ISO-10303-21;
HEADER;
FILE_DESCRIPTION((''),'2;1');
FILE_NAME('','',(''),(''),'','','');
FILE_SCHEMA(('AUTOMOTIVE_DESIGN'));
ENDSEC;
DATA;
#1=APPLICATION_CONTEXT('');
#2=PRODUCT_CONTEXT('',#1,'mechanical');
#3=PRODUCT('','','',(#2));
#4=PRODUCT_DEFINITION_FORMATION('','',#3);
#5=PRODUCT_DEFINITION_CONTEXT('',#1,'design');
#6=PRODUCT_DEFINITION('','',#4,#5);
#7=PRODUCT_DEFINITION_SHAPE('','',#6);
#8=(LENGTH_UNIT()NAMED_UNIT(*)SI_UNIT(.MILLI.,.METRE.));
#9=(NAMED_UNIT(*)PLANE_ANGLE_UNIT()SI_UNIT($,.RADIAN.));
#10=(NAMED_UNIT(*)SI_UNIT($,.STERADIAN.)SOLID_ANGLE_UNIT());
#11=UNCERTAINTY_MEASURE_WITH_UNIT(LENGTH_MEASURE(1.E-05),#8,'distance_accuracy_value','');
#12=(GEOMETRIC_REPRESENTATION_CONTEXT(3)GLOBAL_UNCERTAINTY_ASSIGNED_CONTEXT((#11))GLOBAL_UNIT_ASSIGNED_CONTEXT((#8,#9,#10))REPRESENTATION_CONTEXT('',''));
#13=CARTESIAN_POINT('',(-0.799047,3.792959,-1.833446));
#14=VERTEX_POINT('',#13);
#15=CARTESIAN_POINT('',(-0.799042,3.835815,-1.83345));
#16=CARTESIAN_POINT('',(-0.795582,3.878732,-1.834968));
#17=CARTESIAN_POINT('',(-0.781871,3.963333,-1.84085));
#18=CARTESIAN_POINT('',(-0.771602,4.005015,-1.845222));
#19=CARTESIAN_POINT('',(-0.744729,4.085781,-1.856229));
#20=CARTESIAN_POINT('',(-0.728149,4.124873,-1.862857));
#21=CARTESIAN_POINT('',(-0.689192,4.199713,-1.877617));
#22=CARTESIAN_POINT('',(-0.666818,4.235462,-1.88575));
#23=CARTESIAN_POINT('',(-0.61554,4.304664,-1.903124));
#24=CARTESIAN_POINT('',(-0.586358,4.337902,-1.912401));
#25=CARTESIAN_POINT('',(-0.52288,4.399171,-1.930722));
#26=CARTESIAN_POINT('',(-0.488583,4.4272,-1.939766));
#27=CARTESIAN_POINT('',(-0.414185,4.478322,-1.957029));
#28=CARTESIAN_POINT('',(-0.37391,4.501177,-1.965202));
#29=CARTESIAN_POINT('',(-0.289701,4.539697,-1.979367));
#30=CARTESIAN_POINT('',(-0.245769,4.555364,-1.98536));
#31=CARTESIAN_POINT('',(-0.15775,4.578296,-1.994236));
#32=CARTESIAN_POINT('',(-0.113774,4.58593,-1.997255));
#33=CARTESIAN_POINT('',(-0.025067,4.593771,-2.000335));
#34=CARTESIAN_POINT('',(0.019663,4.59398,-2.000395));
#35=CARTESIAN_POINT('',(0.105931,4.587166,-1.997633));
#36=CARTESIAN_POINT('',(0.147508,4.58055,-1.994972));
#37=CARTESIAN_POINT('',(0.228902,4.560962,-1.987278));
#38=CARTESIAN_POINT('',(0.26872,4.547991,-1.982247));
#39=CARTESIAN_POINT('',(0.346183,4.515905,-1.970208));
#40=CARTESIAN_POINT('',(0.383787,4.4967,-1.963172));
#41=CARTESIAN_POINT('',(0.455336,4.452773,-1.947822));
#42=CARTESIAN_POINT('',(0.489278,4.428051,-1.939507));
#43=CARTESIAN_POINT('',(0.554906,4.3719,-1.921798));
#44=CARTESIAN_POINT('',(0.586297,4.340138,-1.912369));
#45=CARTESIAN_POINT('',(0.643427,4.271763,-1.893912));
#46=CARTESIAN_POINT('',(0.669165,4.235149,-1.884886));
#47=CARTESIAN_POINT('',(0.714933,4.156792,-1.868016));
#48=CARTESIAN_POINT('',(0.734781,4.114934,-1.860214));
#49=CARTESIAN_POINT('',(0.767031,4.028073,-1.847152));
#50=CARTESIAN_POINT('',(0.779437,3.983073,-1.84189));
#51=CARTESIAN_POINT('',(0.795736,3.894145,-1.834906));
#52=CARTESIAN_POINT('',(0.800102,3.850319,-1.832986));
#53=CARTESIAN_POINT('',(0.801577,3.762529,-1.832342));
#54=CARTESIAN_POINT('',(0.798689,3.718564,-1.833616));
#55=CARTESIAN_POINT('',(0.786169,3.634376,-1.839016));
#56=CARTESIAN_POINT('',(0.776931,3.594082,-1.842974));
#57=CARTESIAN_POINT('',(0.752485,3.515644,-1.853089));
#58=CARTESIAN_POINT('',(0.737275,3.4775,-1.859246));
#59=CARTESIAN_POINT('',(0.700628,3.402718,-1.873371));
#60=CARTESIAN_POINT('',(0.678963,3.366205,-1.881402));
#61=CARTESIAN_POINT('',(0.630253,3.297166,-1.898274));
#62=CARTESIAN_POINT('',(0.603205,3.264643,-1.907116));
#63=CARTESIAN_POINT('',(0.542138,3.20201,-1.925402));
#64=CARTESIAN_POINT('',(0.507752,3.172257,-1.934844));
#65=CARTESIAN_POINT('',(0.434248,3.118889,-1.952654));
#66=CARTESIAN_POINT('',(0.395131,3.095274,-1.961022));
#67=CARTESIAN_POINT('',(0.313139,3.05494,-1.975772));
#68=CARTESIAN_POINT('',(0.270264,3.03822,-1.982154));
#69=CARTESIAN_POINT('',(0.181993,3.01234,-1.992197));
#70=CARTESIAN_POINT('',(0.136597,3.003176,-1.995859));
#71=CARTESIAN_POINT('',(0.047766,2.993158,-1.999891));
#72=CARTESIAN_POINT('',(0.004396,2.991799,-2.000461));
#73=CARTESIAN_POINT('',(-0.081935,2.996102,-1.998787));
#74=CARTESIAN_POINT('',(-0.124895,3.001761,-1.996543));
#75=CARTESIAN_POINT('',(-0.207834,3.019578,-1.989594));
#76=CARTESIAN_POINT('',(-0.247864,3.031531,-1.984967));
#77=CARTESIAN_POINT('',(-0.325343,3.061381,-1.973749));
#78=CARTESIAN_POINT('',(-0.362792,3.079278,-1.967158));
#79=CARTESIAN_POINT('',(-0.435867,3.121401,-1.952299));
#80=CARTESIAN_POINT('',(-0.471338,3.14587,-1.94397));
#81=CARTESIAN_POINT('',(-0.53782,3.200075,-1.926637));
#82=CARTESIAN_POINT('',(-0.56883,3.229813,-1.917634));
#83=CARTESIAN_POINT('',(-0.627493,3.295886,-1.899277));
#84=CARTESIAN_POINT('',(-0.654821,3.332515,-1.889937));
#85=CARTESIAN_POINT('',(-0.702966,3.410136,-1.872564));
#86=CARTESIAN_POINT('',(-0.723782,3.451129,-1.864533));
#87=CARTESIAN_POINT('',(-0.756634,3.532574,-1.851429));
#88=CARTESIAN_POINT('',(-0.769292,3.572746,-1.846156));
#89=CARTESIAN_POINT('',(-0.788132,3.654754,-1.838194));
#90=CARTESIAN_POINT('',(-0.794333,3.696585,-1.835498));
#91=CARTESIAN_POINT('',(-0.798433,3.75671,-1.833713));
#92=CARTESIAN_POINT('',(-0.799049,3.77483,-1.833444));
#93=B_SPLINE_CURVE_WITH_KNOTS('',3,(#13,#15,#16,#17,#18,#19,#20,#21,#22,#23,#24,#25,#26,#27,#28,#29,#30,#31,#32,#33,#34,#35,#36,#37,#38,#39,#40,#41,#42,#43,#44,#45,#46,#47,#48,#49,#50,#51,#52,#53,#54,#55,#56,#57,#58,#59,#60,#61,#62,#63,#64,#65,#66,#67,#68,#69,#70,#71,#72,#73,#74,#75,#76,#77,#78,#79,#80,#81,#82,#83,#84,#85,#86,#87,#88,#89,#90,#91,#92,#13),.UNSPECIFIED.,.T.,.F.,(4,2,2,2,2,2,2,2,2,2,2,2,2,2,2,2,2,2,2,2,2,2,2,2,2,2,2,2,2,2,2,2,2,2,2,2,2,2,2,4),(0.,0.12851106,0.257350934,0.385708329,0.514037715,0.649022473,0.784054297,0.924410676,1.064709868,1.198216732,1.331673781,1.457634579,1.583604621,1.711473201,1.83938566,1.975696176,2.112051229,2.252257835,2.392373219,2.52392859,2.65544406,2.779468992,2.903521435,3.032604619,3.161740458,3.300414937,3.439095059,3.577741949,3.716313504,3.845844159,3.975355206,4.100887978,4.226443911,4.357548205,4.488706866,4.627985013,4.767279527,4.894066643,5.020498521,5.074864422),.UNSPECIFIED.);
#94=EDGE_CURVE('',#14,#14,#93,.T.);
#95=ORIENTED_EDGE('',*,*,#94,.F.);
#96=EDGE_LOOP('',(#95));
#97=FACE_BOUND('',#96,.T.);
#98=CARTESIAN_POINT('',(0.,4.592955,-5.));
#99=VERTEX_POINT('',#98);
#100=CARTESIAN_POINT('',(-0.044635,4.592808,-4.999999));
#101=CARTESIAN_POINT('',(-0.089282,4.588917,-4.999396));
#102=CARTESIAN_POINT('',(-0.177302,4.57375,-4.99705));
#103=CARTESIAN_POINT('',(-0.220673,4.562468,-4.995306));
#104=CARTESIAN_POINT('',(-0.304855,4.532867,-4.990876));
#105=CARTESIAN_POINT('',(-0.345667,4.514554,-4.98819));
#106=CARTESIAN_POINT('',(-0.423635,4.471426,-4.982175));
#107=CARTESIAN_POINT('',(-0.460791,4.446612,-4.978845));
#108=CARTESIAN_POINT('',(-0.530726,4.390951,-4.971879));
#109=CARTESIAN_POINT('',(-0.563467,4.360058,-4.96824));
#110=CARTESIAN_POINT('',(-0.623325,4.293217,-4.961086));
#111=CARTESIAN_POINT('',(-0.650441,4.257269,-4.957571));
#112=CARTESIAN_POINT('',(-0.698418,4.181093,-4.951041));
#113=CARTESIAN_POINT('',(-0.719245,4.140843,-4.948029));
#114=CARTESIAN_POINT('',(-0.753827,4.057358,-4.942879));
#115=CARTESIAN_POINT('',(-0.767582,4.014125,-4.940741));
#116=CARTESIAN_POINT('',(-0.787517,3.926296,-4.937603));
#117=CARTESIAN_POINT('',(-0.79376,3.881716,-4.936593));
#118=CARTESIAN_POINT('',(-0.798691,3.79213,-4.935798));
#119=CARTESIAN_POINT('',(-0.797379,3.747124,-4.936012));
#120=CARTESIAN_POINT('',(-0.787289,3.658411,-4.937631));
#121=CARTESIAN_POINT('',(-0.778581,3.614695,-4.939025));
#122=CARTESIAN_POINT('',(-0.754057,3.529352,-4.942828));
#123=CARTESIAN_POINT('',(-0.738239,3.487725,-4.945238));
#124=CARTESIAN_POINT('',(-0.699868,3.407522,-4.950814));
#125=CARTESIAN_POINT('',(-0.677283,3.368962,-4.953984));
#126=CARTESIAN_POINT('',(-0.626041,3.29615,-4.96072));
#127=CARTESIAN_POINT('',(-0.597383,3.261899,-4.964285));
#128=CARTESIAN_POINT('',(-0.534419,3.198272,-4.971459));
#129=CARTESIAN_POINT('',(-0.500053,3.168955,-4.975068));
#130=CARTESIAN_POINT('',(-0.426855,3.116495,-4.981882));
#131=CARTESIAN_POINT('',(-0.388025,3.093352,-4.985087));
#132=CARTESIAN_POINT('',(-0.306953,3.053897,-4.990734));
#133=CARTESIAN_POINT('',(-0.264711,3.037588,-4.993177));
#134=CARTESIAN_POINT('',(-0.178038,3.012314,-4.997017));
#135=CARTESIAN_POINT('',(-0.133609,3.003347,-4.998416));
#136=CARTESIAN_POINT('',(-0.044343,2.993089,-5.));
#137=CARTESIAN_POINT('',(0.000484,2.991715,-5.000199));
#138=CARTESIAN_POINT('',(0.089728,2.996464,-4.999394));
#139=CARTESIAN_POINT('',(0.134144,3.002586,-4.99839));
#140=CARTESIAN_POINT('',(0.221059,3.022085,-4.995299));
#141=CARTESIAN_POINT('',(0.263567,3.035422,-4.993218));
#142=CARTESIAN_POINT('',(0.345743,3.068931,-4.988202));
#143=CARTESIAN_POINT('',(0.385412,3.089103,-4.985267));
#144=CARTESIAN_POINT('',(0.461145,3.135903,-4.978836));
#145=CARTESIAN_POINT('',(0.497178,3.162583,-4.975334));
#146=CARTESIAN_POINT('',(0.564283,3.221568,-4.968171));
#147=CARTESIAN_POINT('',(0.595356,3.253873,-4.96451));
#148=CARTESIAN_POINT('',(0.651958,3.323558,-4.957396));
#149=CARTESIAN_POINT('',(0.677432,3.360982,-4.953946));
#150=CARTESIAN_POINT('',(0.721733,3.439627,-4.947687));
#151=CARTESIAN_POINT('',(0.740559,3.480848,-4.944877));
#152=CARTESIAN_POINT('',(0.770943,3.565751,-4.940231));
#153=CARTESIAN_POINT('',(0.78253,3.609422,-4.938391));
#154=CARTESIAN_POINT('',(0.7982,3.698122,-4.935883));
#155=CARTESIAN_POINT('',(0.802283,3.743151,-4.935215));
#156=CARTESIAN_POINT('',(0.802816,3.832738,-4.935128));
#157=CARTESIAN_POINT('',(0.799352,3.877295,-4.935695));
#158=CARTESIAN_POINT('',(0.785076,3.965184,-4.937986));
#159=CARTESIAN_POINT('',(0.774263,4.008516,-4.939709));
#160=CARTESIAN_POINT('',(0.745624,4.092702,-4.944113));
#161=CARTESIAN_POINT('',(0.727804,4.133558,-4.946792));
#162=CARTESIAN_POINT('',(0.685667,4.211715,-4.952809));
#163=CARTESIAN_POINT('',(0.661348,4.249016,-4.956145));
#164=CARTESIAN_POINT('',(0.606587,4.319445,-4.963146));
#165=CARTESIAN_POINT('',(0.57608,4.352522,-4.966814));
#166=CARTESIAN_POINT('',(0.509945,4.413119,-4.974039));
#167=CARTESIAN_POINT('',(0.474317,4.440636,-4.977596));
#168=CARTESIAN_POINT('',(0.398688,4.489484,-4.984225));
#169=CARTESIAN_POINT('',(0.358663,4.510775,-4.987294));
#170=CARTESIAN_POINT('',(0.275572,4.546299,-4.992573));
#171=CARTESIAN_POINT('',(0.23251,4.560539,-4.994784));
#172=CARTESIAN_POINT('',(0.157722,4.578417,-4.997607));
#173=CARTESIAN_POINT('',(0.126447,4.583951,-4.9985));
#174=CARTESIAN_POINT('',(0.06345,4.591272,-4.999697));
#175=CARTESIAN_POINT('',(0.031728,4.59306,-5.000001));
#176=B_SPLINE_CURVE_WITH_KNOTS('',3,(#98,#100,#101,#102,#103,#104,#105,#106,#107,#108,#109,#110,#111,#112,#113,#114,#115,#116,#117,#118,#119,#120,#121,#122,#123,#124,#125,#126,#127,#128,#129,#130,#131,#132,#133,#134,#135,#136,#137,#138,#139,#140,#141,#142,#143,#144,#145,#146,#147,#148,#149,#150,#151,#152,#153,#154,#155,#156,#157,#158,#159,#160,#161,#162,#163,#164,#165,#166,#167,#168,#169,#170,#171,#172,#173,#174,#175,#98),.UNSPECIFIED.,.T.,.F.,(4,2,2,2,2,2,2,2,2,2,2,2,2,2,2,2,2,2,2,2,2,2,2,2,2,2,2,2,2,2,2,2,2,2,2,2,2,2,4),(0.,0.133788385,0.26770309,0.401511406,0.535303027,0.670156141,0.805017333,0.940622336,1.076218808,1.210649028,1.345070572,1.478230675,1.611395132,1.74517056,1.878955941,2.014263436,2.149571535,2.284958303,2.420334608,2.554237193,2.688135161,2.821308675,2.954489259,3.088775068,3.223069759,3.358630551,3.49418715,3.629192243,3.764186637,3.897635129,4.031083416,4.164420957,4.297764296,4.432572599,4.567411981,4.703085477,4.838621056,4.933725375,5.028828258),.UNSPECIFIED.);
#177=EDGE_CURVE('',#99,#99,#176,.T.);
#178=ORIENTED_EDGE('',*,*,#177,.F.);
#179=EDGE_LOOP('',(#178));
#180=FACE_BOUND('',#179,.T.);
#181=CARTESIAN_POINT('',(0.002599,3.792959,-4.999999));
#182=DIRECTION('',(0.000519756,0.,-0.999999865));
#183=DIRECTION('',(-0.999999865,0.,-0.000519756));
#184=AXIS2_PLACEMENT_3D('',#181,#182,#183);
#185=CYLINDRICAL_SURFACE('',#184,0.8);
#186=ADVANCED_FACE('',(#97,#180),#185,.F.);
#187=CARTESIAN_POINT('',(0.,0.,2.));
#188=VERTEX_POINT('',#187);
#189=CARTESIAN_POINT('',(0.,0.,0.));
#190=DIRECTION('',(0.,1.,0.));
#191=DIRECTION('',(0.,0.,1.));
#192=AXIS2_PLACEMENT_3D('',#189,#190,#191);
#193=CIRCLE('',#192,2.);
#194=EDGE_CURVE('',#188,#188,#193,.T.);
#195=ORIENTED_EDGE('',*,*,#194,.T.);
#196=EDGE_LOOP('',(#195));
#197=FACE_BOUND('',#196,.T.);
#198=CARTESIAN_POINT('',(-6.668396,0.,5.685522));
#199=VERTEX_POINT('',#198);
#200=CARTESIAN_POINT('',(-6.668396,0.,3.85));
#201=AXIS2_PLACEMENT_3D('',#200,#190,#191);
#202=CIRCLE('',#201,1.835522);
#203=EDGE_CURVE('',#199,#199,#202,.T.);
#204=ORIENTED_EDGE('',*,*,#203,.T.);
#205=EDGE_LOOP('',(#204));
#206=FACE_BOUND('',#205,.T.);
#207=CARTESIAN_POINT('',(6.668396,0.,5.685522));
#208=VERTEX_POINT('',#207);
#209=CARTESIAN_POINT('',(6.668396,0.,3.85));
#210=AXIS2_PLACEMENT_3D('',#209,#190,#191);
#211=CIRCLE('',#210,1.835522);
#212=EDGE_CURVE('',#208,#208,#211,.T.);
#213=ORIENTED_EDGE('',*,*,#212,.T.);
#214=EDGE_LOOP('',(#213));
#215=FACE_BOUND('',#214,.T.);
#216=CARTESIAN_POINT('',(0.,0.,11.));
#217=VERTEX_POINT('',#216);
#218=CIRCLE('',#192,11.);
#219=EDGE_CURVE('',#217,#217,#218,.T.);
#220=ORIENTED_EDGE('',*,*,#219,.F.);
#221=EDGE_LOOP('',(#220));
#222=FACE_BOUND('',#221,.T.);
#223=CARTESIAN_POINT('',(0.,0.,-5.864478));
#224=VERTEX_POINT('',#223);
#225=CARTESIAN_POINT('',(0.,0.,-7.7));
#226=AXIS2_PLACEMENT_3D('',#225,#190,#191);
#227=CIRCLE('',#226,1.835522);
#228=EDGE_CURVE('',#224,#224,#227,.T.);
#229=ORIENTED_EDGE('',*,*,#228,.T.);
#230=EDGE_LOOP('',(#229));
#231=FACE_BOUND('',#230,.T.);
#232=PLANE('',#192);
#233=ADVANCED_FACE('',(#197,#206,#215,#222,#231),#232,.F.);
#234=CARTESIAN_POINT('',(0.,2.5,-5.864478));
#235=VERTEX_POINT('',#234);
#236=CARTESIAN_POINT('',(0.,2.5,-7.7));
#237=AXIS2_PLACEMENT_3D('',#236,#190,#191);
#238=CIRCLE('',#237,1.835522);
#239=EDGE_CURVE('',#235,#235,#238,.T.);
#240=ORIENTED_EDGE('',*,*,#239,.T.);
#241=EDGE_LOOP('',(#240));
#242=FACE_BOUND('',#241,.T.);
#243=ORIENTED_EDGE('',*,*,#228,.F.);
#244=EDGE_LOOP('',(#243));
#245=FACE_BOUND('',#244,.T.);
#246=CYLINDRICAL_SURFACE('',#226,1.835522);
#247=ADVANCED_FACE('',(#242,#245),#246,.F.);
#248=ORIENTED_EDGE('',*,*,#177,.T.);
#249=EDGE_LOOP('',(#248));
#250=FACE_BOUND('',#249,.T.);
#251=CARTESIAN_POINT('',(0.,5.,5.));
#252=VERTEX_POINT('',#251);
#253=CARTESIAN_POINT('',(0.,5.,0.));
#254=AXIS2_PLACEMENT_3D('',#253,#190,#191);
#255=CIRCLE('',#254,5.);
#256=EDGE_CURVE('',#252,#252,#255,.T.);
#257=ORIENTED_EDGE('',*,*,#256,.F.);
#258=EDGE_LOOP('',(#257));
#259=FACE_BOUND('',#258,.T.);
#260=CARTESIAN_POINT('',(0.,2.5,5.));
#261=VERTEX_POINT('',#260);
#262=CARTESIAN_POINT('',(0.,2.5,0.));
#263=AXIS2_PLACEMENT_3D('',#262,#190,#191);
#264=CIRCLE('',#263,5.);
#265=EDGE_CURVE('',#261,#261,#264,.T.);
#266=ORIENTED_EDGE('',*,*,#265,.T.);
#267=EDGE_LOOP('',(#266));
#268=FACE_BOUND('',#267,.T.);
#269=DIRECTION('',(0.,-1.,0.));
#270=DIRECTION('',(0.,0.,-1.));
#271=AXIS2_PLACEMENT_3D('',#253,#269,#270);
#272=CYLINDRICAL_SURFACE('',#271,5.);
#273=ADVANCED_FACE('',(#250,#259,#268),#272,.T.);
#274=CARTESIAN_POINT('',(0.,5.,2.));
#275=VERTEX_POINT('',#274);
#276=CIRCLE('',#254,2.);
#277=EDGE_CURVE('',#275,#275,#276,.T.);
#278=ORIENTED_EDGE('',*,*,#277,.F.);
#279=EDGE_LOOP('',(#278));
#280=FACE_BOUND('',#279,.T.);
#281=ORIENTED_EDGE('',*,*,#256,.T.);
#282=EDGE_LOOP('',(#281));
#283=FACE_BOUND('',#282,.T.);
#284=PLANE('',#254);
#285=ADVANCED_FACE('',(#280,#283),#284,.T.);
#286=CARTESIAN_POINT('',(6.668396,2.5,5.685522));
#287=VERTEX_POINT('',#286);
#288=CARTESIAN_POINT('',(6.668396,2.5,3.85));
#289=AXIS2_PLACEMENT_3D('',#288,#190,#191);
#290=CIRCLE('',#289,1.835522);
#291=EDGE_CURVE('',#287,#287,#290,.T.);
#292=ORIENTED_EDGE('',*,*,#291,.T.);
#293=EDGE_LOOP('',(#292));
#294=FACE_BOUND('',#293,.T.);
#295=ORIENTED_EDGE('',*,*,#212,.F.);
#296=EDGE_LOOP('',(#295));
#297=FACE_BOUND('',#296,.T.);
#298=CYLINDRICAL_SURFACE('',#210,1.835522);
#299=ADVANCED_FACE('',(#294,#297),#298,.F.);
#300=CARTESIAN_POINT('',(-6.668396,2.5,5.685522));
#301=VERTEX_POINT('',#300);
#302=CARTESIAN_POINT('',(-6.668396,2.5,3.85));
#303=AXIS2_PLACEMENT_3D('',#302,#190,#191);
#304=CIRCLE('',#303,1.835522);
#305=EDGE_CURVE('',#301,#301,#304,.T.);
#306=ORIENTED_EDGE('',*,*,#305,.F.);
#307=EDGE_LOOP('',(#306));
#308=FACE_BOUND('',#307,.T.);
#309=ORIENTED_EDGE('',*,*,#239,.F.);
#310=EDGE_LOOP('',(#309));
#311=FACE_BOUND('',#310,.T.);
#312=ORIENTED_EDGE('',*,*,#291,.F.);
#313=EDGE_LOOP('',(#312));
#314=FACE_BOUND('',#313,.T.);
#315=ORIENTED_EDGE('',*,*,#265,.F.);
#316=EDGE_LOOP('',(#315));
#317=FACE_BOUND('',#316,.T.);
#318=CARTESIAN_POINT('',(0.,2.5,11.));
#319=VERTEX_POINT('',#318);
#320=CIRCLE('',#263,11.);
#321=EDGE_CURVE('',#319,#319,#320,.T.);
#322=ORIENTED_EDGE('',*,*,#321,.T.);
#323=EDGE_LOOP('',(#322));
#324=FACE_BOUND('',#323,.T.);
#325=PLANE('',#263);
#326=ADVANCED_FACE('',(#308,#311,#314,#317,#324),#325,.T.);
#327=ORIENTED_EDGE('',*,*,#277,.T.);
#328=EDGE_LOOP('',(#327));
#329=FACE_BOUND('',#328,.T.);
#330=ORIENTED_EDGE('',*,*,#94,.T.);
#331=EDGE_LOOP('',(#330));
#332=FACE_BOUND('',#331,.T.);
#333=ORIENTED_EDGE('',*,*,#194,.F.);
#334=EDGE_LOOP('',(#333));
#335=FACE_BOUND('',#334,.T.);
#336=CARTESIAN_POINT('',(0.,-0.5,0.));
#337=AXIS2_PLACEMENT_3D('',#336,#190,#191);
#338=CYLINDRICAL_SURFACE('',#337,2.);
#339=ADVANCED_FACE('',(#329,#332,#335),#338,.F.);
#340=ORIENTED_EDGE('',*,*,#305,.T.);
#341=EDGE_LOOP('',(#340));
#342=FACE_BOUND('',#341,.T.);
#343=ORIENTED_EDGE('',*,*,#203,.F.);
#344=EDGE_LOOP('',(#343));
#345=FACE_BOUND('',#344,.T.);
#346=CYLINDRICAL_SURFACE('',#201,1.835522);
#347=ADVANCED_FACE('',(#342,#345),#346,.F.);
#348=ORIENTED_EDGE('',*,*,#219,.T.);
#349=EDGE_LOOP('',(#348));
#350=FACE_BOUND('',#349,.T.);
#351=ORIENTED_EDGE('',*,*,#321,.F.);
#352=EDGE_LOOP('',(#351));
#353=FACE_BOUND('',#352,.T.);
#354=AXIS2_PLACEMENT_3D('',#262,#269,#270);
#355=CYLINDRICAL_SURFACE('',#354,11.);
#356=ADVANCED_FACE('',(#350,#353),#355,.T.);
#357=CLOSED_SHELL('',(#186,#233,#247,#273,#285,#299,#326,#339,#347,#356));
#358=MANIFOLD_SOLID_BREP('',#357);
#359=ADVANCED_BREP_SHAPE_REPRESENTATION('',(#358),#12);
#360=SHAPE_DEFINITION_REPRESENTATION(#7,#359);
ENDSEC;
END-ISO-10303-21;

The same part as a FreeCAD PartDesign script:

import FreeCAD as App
import Part
import Sketcher
Q = App.Units.Quantity

doc = App.newDocument("Part")
body = doc.addObject("PartDesign::Body", "Body")

# Sketch on XZ plane
sketch1 = body.newObject("Sketcher::SketchObject", "Sketch")
sketch1.AttachmentSupport = (doc.getObject("XZ_Plane"), [""])
sketch1.MapMode = "FlatFace"
sketch1.addGeometry(Part.Circle(App.Vector(0, 0, 0), App.Vector(0, 0, 1), 11), False)
sketch1.addConstraint([
    Sketcher.Constraint("Coincident", 0, 3, -1, 1),
    Sketcher.Constraint("Diameter", 0, Q("22 mm")),
])
pad1 = body.newObject("PartDesign::Pad", "Pad")
pad1.Profile = sketch1
pad1.Length = 2.5
pad1.Reversed = True

# Sketch on XZ plane
sketch2 = body.newObject("Sketcher::SketchObject", "Sketch001")
sketch2.AttachmentSupport = (doc.getObject("XZ_Plane"), [""])
sketch2.MapMode = "FlatFace"
sketch2.AttachmentOffset = App.Placement(App.Vector(0, 0, -2.5), App.Rotation())
sketch2.addGeometry([
    Part.Circle(App.Vector(0, -7.7, 0), App.Vector(0, 0, 1), 1.8),
    Part.Circle(App.Vector(6.7, 3.9, 0), App.Vector(0, 0, 1), 1.8),
    Part.Circle(App.Vector(-6.7, 3.9, 0), App.Vector(0, 0, 1), 1.8),
], False)
sketch2.addConstraint([
    Sketcher.Constraint("Equal", 0, 1),
    Sketcher.Constraint("Equal", 1, 2),
    Sketcher.Constraint("Symmetric", 1, 3, 2, 3, -2),
    Sketcher.Constraint("PointOnObject", 0, 3, -2),
    Sketcher.Constraint("DistanceY", 0, 3, -1, 1, Q("7.7 mm")),
    Sketcher.Constraint("DistanceY", -1, 1, 1, 3, Q("3.85 mm")),
    Sketcher.Constraint("Diameter", 0, Q("3.671043 mm")),
    Sketcher.Constraint("DistanceX", 2, 3, 1, 3, Q("13.336791 mm")),
])
pocket1 = body.newObject("PartDesign::Pocket", "Pocket")
pocket1.Profile = sketch2
pocket1.Length = 2.5
pocket1.Reversed = True

# Sketch on XZ plane
sketch3 = body.newObject("Sketcher::SketchObject", "Sketch002")
sketch3.AttachmentSupport = (doc.getObject("XZ_Plane"), [""])
sketch3.MapMode = "FlatFace"
sketch3.AttachmentOffset = App.Placement(App.Vector(0, 0, -2.5), App.Rotation())
sketch3.addGeometry(Part.Circle(App.Vector(0, 0, 0), App.Vector(0, 0, 1), 5), False)
sketch3.addConstraint([
    Sketcher.Constraint("Coincident", 0, 3, -1, 1),
    Sketcher.Constraint("Diameter", 0, Q("10 mm")),
])
pad2 = body.newObject("PartDesign::Pad", "Pad001")
pad2.Profile = sketch3
pad2.Length = 2.5
pad2.Reversed = True

# Sketch on XZ plane
sketch4 = body.newObject("Sketcher::SketchObject", "Sketch003")
sketch4.AttachmentSupport = (doc.getObject("XZ_Plane"), [""])
sketch4.MapMode = "FlatFace"
sketch4.AttachmentOffset = App.Placement(App.Vector(0, 0, -5), App.Rotation())
sketch4.addGeometry(Part.Circle(App.Vector(0, 0, 0), App.Vector(0, 0, 1), 2), False)
sketch4.addConstraint([
    Sketcher.Constraint("Coincident", 0, 3, -1, 1),
    Sketcher.Constraint("Diameter", 0, Q("4 mm")),
])
pocket2 = body.newObject("PartDesign::Pocket", "Pocket001")
pocket2.Profile = sketch4
pocket2.Length = 5.5
pocket2.Reversed = True

# Sketch on an angled plane
sketch5 = body.newObject("Sketcher::SketchObject", "Sketch004")
sketch5.Placement = App.Placement(App.Vector(0.002599, 3.792959, -4.999999), App.Rotation(App.Vector(-0.999999865, 0, -0.000519756), App.Vector(0, 1, 0), App.Vector(0.000519756, 0, -0.999999865), "ZXY"))
sketch5.addGeometry(Part.Circle(App.Vector(0, 0, 0), App.Vector(0, 0, 1), 0.8), False)
sketch5.addConstraint([
    Sketcher.Constraint("Coincident", 0, 3, -1, 1),
    Sketcher.Constraint("Diameter", 0, Q("1.6 mm")),
])
pocket3 = body.newObject("PartDesign::Pocket", "Pocket002")
pocket3.Profile = sketch5
pocket3.Type = "UpToFirst"

doc.recompute()
